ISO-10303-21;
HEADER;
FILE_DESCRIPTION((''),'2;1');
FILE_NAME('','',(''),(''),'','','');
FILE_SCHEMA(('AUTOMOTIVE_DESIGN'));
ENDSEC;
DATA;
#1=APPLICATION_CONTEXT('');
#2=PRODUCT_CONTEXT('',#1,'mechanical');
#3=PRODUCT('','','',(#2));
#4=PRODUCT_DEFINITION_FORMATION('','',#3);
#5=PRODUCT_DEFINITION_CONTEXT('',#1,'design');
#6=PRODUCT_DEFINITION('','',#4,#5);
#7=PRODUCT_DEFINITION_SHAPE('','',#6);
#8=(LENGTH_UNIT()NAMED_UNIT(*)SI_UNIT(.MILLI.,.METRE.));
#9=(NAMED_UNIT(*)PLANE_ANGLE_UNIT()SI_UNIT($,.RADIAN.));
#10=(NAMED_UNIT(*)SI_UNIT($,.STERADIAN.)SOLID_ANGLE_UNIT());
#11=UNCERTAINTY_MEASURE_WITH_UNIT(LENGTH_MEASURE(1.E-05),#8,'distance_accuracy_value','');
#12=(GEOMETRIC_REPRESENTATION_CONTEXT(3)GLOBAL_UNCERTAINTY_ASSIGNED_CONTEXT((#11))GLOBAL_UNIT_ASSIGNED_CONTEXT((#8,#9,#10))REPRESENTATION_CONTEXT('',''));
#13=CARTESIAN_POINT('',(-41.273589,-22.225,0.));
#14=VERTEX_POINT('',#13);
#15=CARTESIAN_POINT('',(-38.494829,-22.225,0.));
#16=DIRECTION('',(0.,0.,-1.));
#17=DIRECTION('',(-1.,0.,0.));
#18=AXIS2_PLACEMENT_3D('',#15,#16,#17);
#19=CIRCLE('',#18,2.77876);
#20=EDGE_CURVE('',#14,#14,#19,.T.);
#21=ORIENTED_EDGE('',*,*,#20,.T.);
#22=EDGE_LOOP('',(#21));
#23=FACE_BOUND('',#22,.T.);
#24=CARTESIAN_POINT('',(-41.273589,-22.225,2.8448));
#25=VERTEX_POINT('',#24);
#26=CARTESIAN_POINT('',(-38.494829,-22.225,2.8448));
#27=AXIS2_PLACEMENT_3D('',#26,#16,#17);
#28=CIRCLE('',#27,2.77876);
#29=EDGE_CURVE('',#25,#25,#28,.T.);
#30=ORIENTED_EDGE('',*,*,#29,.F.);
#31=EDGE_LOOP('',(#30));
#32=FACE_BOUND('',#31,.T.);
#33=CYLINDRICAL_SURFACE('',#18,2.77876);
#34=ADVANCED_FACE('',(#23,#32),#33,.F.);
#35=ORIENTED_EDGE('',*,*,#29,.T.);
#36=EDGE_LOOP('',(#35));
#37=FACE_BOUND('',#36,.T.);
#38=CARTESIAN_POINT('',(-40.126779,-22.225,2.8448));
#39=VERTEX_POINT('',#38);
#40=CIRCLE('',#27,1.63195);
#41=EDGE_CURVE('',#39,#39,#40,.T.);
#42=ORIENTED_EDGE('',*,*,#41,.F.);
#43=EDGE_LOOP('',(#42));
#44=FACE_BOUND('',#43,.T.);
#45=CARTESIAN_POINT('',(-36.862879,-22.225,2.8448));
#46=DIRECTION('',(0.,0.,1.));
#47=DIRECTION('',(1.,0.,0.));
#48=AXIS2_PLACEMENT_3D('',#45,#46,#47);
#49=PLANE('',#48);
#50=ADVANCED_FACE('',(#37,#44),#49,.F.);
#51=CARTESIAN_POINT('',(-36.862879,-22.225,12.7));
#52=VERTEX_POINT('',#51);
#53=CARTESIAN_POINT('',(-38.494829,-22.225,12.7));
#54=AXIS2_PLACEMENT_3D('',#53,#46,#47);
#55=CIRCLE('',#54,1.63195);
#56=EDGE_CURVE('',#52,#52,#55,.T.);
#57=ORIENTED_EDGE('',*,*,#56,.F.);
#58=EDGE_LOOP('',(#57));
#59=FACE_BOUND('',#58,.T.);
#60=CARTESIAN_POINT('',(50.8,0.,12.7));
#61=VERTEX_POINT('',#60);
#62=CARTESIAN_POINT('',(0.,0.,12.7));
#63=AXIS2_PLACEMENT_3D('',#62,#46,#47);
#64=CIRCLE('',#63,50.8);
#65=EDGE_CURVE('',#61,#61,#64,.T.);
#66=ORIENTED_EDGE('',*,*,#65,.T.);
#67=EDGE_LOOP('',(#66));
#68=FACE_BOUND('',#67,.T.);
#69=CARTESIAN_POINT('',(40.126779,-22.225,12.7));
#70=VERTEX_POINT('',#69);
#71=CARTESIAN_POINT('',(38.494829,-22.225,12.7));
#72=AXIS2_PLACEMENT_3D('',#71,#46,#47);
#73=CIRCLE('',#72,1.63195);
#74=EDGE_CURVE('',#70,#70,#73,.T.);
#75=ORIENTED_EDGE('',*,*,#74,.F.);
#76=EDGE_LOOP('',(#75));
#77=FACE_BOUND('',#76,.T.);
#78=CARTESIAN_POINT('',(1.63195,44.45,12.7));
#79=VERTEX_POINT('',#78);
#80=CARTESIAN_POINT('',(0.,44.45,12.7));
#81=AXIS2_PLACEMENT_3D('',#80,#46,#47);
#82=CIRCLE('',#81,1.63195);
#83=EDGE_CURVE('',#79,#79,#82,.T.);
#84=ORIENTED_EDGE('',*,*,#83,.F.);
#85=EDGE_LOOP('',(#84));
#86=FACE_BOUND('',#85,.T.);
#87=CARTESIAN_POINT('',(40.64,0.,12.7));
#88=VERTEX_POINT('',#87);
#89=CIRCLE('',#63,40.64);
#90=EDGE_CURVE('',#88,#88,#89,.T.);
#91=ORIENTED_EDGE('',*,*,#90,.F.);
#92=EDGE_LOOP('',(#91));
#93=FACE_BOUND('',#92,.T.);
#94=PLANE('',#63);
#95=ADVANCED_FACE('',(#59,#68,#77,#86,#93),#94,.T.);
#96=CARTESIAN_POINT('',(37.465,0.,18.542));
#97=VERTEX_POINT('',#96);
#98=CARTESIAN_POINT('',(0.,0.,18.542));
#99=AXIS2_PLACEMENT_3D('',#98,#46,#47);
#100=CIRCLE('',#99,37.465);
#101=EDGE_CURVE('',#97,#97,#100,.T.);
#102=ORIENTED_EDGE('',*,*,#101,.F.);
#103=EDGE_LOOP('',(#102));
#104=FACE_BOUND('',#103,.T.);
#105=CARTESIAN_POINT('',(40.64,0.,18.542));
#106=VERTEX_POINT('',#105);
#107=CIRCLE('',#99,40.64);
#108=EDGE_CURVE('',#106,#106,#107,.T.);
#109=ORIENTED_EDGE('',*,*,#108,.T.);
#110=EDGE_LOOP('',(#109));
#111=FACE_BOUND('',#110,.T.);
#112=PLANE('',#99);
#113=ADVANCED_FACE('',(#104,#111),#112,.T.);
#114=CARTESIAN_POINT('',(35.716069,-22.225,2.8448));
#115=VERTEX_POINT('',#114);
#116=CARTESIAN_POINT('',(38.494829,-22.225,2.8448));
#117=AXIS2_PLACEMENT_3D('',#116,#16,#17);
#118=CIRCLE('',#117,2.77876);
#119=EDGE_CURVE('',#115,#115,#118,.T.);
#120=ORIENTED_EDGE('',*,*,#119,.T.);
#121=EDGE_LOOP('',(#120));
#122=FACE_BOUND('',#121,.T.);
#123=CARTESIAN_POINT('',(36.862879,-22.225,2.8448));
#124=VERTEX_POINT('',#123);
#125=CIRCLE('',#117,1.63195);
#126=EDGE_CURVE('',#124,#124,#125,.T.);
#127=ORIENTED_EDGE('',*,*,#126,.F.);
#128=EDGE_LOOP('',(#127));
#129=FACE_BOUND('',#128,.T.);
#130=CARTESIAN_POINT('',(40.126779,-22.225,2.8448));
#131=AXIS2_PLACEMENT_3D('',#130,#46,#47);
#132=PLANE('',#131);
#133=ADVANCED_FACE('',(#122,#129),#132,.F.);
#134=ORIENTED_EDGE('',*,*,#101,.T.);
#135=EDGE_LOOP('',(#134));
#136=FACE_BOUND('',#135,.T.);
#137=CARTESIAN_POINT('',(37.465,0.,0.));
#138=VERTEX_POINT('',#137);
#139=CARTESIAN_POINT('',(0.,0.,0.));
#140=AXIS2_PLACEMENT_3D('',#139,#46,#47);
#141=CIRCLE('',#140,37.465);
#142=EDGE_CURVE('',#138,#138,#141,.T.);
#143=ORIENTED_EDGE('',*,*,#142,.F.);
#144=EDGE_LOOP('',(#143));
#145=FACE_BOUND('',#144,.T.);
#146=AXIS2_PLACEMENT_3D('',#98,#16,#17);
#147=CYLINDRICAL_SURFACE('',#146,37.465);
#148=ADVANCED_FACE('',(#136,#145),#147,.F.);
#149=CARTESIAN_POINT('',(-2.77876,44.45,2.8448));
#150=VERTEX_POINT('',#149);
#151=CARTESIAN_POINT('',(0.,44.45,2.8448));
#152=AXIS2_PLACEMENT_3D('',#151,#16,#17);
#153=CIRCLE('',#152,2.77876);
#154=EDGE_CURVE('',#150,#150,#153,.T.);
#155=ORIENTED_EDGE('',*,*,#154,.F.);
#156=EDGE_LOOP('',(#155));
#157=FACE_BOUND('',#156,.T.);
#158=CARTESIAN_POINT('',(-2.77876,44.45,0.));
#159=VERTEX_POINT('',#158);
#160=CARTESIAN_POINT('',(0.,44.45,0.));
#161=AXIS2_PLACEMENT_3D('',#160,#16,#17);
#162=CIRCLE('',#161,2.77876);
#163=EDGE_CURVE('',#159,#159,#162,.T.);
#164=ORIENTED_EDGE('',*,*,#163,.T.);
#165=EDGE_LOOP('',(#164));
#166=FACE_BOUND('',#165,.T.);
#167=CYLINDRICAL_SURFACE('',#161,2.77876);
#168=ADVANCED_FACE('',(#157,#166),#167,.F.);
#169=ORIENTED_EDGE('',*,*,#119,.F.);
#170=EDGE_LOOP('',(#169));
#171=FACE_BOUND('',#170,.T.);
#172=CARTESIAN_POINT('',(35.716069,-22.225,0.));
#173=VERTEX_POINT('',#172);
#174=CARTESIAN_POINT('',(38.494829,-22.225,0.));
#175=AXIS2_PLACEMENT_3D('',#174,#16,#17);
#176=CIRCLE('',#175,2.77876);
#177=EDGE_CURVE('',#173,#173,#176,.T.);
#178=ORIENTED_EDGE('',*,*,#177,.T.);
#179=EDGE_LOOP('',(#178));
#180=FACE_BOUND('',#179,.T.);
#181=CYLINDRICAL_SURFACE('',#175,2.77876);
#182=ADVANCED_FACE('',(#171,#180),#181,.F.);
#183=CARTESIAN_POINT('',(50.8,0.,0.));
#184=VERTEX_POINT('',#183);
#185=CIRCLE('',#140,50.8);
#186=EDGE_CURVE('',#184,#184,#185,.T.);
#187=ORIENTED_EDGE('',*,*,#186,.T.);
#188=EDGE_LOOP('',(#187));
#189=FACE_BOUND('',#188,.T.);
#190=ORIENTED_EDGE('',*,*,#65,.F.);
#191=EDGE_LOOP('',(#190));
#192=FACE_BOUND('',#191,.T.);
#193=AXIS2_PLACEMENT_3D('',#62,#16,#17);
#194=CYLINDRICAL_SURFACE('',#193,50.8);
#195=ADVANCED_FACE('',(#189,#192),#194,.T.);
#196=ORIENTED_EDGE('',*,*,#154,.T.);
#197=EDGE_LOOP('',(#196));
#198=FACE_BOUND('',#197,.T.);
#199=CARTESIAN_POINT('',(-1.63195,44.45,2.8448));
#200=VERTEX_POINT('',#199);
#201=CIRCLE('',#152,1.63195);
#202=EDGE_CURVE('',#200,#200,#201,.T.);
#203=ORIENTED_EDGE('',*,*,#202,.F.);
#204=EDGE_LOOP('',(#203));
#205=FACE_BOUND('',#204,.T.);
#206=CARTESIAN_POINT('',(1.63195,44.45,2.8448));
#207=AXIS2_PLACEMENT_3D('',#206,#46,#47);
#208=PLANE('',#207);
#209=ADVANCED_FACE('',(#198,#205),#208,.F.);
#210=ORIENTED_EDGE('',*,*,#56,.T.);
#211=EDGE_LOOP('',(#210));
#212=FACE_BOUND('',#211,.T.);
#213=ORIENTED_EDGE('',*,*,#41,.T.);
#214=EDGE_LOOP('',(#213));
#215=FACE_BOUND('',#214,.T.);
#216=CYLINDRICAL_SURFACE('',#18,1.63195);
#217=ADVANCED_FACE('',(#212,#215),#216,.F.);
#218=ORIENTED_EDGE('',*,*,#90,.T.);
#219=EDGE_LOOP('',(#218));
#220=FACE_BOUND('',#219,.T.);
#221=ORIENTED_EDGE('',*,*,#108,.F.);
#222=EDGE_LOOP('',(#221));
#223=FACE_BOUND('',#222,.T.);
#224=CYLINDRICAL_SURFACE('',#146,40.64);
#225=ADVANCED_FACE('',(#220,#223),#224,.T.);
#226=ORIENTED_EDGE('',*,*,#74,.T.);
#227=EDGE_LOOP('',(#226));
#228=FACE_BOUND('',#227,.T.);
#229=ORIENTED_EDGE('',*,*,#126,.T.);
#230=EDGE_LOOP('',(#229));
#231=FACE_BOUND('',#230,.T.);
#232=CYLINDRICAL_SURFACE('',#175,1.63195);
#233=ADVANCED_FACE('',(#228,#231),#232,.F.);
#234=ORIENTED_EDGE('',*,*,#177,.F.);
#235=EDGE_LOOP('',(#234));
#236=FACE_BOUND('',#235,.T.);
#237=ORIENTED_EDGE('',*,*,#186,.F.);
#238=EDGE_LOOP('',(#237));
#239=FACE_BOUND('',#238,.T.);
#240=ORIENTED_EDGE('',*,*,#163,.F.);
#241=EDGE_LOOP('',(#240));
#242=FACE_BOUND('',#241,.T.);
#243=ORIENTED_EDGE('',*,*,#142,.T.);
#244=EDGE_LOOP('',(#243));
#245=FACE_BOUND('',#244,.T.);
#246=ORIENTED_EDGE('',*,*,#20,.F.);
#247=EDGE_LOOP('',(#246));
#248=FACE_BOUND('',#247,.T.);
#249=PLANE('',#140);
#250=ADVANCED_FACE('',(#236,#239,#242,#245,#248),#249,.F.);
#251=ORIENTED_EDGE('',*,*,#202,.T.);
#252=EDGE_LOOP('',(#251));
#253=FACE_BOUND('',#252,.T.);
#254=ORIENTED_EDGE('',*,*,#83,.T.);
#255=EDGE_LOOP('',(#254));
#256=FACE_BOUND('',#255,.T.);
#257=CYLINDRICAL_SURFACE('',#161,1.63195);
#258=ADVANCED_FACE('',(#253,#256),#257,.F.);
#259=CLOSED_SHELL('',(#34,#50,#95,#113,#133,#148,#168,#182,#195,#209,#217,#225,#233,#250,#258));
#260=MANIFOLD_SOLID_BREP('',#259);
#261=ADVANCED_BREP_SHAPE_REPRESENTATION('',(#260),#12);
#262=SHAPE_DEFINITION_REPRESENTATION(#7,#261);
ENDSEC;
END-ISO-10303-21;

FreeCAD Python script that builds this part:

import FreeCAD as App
import Part
import Sketcher
from FreeCAD import Vector
Q = App.Units.Quantity

doc = App.newDocument("Part")
body = doc.addObject("PartDesign::Body", "Body")

# Sketch on XY plane
sketch1 = doc.addObject("Sketcher::SketchObject", "Sketch")
body.addObject(sketch1)
sketch1.AttachmentSupport = (doc.XY_Plane, [""])
sketch1.MapMode = "FlatFace"
sketch1.addGeometry(Part.Circle(Vector(0, 0, 0), Vector(0, 0, 1), 50.8), False)
sketch1.addConstraint(Sketcher.Constraint("Coincident", 0, 3, -1, 1))
sketch1.addConstraint(Sketcher.Constraint("Diameter", 0, Q("4 in")))
pad1 = doc.addObject("PartDesign::Pad", "Pad")
body.addObject(pad1)
pad1.Profile = sketch1
pad1.Length = Q("0.5 in")

# Sketch on XY plane
sketch2 = doc.addObject("Sketcher::SketchObject", "Sketch001")
body.addObject(sketch2)
sketch2.AttachmentSupport = (doc.XY_Plane, [""])
sketch2.MapMode = "FlatFace"
sketch2.AttachmentOffset = App.Placement(Vector(0, 0, 0.5 * 25.4), App.Rotation())
sketch2.addGeometry(Part.Circle(Vector(0, 0, 0), Vector(0, 0, 1), 40.64), False)
sketch2.addGeometry(Part.Circle(Vector(0, 0, 0), Vector(0, 0, 1), 37.465), False)
sketch2.addConstraint(Sketcher.Constraint("Coincident", 0, 3, -1, 1))
sketch2.addConstraint(Sketcher.Constraint("Coincident", 1, 3, -1, 1))
sketch2.addConstraint(Sketcher.Constraint("Diameter", 0, Q("3.2 in")))
sketch2.addConstraint(Sketcher.Constraint("Diameter", 1, Q("2.95 in")))
pad2 = doc.addObject("PartDesign::Pad", "Pad001")
body.addObject(pad2)
pad2.Profile = sketch2
pad2.Length = Q("0.23 in")

# Sketch on XY plane
sketch3 = doc.addObject("Sketcher::SketchObject", "Sketch002")
body.addObject(sketch3)
sketch3.AttachmentSupport = (doc.XY_Plane, [""])
sketch3.MapMode = "FlatFace"
sketch3.AttachmentOffset = App.Placement(Vector(0, 0, 0.5 * 25.4), App.Rotation())
sketch3.addGeometry(Part.Circle(Vector(0, 0, 0), Vector(0, 0, 1), 37.465), False)
sketch3.addConstraint(Sketcher.Constraint("Coincident", 0, 3, -1, 1))
sketch3.addConstraint(Sketcher.Constraint("Diameter", 0, Q("2.95 in")))
pocket1 = doc.addObject("PartDesign::Pocket", "Pocket")
body.addObject(pocket1)
pocket1.Profile = sketch3
pocket1.Type = "ThroughAll"

# Sketch on YZ plane
sketch4 = doc.addObject("Sketcher::SketchObject", "Sketch003")
body.addObject(sketch4)
sketch4.AttachmentSupport = (doc.YZ_Plane, [""])
sketch4.MapMode = "FlatFace"
sketch4.addGeometry(Part.LineSegment(Vector(44.45, 13.807574, 0), Vector(44.45, 0, 0)), False)
sketch4.addGeometry(Part.LineSegment(Vector(44.45, 0, 0), Vector(47.22876, 0, 0)), False)
sketch4.addGeometry(Part.LineSegment(Vector(47.22876, 0, 0), Vector(47.22876, 2.8448, 0)), False)
sketch4.addGeometry(Part.LineSegment(Vector(47.22876, 2.8448, 0), Vector(46.08195, 2.8448, 0)), False)
sketch4.addGeometry(Part.LineSegment(Vector(46.08195, 2.8448, 0), Vector(46.08195, 12.827, 0)), False)
sketch4.addGeometry(Part.LineSegment(Vector(46.08195, 12.827, 0), Vector(44.45, 13.807574, 0)), False)
sketch4.addGeometry(Part.LineSegment(Vector(44.45, 0, 0), Vector(44.45, 13.807574, 0)), True)  # axis
sketch4.addConstraint(Sketcher.Constraint("Coincident", 0, 2, 1, 1))
sketch4.addConstraint(Sketcher.Constraint("Coincident", 1, 2, 2, 1))
sketch4.addConstraint(Sketcher.Constraint("Coincident", 2, 2, 3, 1))
sketch4.addConstraint(Sketcher.Constraint("Coincident", 3, 2, 4, 1))
sketch4.addConstraint(Sketcher.Constraint("Coincident", 4, 2, 5, 1))
sketch4.addConstraint(Sketcher.Constraint("Coincident", 5, 2, 0, 1))
sketch4.addConstraint(Sketcher.Constraint("Vertical", 0))
sketch4.addConstraint(Sketcher.Constraint("Horizontal", 1))
sketch4.addConstraint(Sketcher.Constraint("Vertical", 2))
sketch4.addConstraint(Sketcher.Constraint("Horizontal", 3))
sketch4.addConstraint(Sketcher.Constraint("Vertical", 4))
sketch4.addConstraint(Sketcher.Constraint("Vertical", 6))
sketch4.addConstraint(Sketcher.Constraint("Coincident", 6, 1, 0, 2))
sketch4.addConstraint(Sketcher.Constraint("PointOnObject", 0, 2, -1))
sketch4.addConstraint(Sketcher.Constraint("Equal", 0, 6))
sketch4.addConstraint(Sketcher.Constraint("Angle", 5, Q("149 deg")))
sketch4.addConstraint(Sketcher.Constraint("DistanceY", 2, 1, 2, 2, Q("0.112 in")))
sketch4.addConstraint(Sketcher.Constraint("DistanceY", 4, 1, 4, 2, Q("0.393 in")))
sketch4.addConstraint(Sketcher.Constraint("DistanceX", -1, 1, 0, 2, Q("1.75 in")))
sketch4.addConstraint(Sketcher.Constraint("DistanceX", 1, 1, 1, 2, Q("0.1094 in")))
sketch4.addConstraint(Sketcher.Constraint("DistanceX", 3, 2, 3, 1, Q("1.14681 mm")))
groove = doc.addObject("PartDesign::Groove", "Groove")
body.addObject(groove)
groove.Profile = sketch4
groove.ReferenceAxis = (sketch4, ["Axis0"])
groove.Angle = 360
doc.recompute()

polarpattern = doc.addObject("PartDesign::PolarPattern", "PolarPattern")
body.addObject(polarpattern)
polarpattern.Originals = [groove]
polarpattern.Axis = (doc.Z_Axis, [""])
polarpattern.Angle = 360
polarpattern.Occurrences = 3
body.Tip = polarpattern

doc.recompute()
